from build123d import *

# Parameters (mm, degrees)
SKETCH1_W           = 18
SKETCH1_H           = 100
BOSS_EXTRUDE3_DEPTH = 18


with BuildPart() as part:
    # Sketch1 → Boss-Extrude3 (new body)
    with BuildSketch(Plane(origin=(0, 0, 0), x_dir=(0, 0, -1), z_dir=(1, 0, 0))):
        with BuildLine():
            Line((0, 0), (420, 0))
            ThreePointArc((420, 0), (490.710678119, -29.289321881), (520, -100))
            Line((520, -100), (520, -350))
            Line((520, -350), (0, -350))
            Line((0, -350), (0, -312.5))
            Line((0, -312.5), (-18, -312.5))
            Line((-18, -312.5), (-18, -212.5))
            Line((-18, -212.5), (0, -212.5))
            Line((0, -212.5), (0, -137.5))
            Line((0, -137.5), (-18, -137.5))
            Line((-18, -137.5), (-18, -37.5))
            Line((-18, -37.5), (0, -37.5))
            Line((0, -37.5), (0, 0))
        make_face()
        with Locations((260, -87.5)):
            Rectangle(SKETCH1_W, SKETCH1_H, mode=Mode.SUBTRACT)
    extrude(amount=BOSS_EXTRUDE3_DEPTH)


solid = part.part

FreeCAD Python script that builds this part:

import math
import FreeCAD as App
import Part
import Sketcher


def add_polygon(sketch, points):
    """Adds a closed chain of lines whose ends are joined by coincident constraints."""
    first, n = sketch.GeometryCount, len(points)
    for a, b in zip(points, points[1:] + points[:1]):
        sketch.addGeometry(Part.LineSegment(App.Vector(*a, 0), App.Vector(*b, 0)), False)
    for i in range(n):
        sketch.addConstraint(Sketcher.Constraint("Coincident", first + i, 2, first + (i + 1) % n, 1))

doc = App.newDocument("Part")
body = doc.addObject("PartDesign::Body", "Body")

sketch1 = body.newObject("Sketcher::SketchObject", "Sketch")
sketch1.AttachmentSupport = (doc.getObject("YZ_Plane"), [""])
sketch1.MapMode = "FlatFace"
sketch1.addGeometry(Part.LineSegment(App.Vector(0, -420, 0), App.Vector(0, 0, 0)), False)
sketch1.addGeometry(Part.LineSegment(App.Vector(0, 0, 0), App.Vector(-38, 0, 0)), False)
sketch1.addGeometry(Part.LineSegment(App.Vector(-38, 0, 0), App.Vector(-38, 18, 0)), False)
sketch1.addGeometry(Part.LineSegment(App.Vector(-38, 18, 0), App.Vector(-138, 18, 0)), False)
sketch1.addGeometry(Part.LineSegment(App.Vector(-138, 18, 0), App.Vector(-138, 0, 0)), False)
sketch1.addGeometry(Part.LineSegment(App.Vector(-138, 0, 0), App.Vector(-212, 0, 0)), False)
sketch1.addGeometry(Part.LineSegment(App.Vector(-212, 0, 0), App.Vector(-212, 18, 0)), False)
sketch1.addGeometry(Part.LineSegment(App.Vector(-212, 18, 0), App.Vector(-312, 18, 0)), False)
sketch1.addGeometry(Part.LineSegment(App.Vector(-312, 18, 0), App.Vector(-312, 0, 0)), False)
sketch1.addGeometry(Part.LineSegment(App.Vector(-312, 0, 0), App.Vector(-350, 0, 0)), False)
sketch1.addGeometry(Part.LineSegment(App.Vector(-350, 0, 0), App.Vector(-350, -520, 0)), False)
sketch1.addGeometry(Part.LineSegment(App.Vector(-350, -520, 0), App.Vector(-100, -520, 0)), False)
sketch1.addGeometry(Part.ArcOfCircle(Part.Circle(App.Vector(-100, -420, 0), App.Vector(0, 0, 1), 100), math.radians(-90), math.radians(0)), False)
add_polygon(sketch1, [(-138, -251), (-38, -251), (-38, -269), (-138, -269)])
sketch1.addConstraint([
    Sketcher.Constraint("Coincident", 0, 2, 1, 1),
    Sketcher.Constraint("Coincident", 1, 2, 2, 1),
    Sketcher.Constraint("Coincident", 2, 2, 3, 1),
    Sketcher.Constraint("Coincident", 3, 2, 4, 1),
    Sketcher.Constraint("Coincident", 4, 2, 5, 1),
    Sketcher.Constraint("Coincident", 5, 2, 6, 1),
    Sketcher.Constraint("Coincident", 6, 2, 7, 1),
    Sketcher.Constraint("Coincident", 7, 2, 8, 1),
    Sketcher.Constraint("Coincident", 8, 2, 9, 1),
    Sketcher.Constraint("Coincident", 9, 2, 10, 1),
    Sketcher.Constraint("Coincident", 10, 2, 11, 1),
    Sketcher.Constraint("Tangent", 11, 2, 12, 1),
    Sketcher.Constraint("Tangent", 12, 2, 0, 1),
    Sketcher.Constraint("Vertical", 0),
    Sketcher.Constraint("Horizontal", 1),
    Sketcher.Constraint("Vertical", 2),
    Sketcher.Constraint("Horizontal", 3),
    Sketcher.Constraint("Vertical", 4),
    Sketcher.Constraint("Horizontal", 5),
    Sketcher.Constraint("Vertical", 6),
    Sketcher.Constraint("Horizontal", 7),
    Sketcher.Constraint("Vertical", 8),
    Sketcher.Constraint("Horizontal", 9),
    Sketcher.Constraint("Vertical", 10),
    Sketcher.Constraint("Horizontal", 11),
    Sketcher.Constraint("Horizontal", 13),
    Sketcher.Constraint("Vertical", 14),
    Sketcher.Constraint("Horizontal", 15),
    Sketcher.Constraint("Vertical", 16),
    Sketcher.Constraint("Coincident", 0, 2, -1, 1),
    Sketcher.Constraint("PointOnObject", 4, 2, -1),
    Sketcher.Constraint("PointOnObject", 8, 2, -1),
    Sketcher.Constraint("Horizontal", 3, 2, 6, 2),
    Sketcher.Constraint("Vertical", 2, 2, 13, 2),
    Sketcher.Constraint("Vertical", 4, 2, 15, 2),
    Sketcher.Constraint("Equal", 3, 7),
    Sketcher.Constraint("Equal", 1, 9),
    Sketcher.Constraint("Equal", 8, 14),
    Sketcher.Constraint("Radius", 12, 100.0),
    Sketcher.Constraint("DistanceX", 3, 2, 3, 1, 100.0),
    Sketcher.Constraint("DistanceX", 5, 2, 5, 1, 75.0),
    Sketcher.Constraint("DistanceX", 11, 1, 11, 2, 250.0),
    Sketcher.Constraint("DistanceY", 0, 1, 0, 2, 420.0),
    Sketcher.Constraint("DistanceY", 2, 1, 2, 2, 18.0),
    Sketcher.Constraint("DistanceY", 13, 2, -1, 1, 251.0),
])
pad1 = body.newObject("PartDesign::Pad", "Pad")
pad1.Profile = sketch1
pad1.Length = 18

doc.recompute()
